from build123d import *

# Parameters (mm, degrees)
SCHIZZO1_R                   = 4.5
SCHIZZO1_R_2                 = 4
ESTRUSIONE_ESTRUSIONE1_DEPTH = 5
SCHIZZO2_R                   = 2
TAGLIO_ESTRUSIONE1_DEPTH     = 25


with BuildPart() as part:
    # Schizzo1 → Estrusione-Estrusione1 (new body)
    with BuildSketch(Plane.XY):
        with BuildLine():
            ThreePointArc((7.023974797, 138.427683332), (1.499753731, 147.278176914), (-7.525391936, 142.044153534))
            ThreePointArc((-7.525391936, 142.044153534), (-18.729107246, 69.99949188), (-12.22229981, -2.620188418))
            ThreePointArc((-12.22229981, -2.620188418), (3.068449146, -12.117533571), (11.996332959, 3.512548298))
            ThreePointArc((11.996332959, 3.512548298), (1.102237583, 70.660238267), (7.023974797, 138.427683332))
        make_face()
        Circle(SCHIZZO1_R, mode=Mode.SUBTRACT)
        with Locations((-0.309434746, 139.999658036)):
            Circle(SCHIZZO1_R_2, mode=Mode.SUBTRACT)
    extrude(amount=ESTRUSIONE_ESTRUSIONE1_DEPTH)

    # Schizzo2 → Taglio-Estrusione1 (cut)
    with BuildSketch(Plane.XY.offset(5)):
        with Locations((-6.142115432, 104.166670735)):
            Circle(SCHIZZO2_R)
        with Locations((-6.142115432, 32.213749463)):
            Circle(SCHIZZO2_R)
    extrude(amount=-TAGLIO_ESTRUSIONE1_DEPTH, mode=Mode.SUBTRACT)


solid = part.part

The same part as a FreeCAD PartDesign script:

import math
import FreeCAD as App
import Part
import Sketcher
Q = App.Units.Quantity

doc = App.newDocument("Part")
body = doc.addObject("PartDesign::Body", "Body")

# Sketch on XY plane
sketch1 = body.newObject("Sketcher::SketchObject", "Sketch")
sketch1.AttachmentSupport = (doc.getObject("XY_Plane"), [""])
sketch1.MapMode = "FlatFace"
sketch1.addGeometry(Part.ArcOfCircle(Part.Circle(App.Vector(-0.309435, 139.999658, 0), App.Vector(0, 0, 1), 7.5), math.radians(-12.098715), math.radians(164.180995)), False)
sketch1.addGeometry(Part.ArcOfCircle(Part.Circle(App.Vector(281.112896, 60.264334, 0), App.Vector(0, 0, 1), 300), math.radians(164.180995), math.radians(192.099796)), False)
sketch1.addGeometry(Part.ArcOfCircle(Part.Circle(App.Vector(0, 0, 0), App.Vector(0, 0, 1), 12.5), math.radians(-167.900204), math.radians(16.320128)), False)
sketch1.addGeometry(Part.ArcOfCircle(Part.Circle(App.Vector(275.915658, 80.788611, 0), App.Vector(0, 0, 1), 275), math.radians(167.901285), math.radians(196.320128)), False)
sketch1.addGeometry(Part.Circle(App.Vector(0, 0, 0), App.Vector(0, 0, 1), 4.5), False)
sketch1.addGeometry(Part.Circle(App.Vector(-0.309435, 139.999658, 0), App.Vector(0, 0, 1), 4), False)
sketch1.addConstraint(Sketcher.Constraint("Tangent", 0, 2, 1, 1))
sketch1.addConstraint(Sketcher.Constraint("Tangent", 1, 2, 2, 1))
sketch1.addConstraint(Sketcher.Constraint("Tangent", 2, 2, 3, 2))
sketch1.addConstraint(Sketcher.Constraint("Tangent", 3, 1, 0, 1))
sketch1.addConstraint(Sketcher.Constraint("Coincident", 2, 3, -1, 1))
sketch1.addConstraint(Sketcher.Constraint("Coincident", 4, 3, -1, 1))
sketch1.addConstraint(Sketcher.Constraint("Coincident", 5, 3, 0, 3))
sketch1.addConstraint(Sketcher.Constraint("Diameter", 4, Q("9 mm")))
sketch1.addConstraint(Sketcher.Constraint("Diameter", 5, Q("8 mm")))
sketch1.addConstraint(Sketcher.Constraint("Radius", 1, Q("300 mm")))
sketch1.addConstraint(Sketcher.Constraint("Radius", 3, Q("275 mm")))
sketch1.addConstraint(Sketcher.Constraint("Radius", 0, Q("7.5 mm")))
sketch1.addConstraint(Sketcher.Constraint("Radius", 2, Q("12.5 mm")))
sketch1.addConstraint(Sketcher.Constraint("DistanceY", -1, 1, 0, 3, Q("139.999658 mm")))
sketch1.addConstraint(Sketcher.Constraint("DistanceX", -1, 1, 3, 3, Q("275.915658 mm")))
pad1 = body.newObject("PartDesign::Pad", "Pad")
pad1.Profile = sketch1
pad1.Length = 5

# Sketch on XY plane
sketch2 = body.newObject("Sketcher::SketchObject", "Sketch001")
sketch2.AttachmentSupport = (doc.getObject("XY_Plane"), [""])
sketch2.MapMode = "FlatFace"
sketch2.AttachmentOffset = App.Placement(App.Vector(0, 0, 5), App.Rotation())
sketch2.addGeometry(Part.Circle(App.Vector(-6.142115, 104.166671, 0), App.Vector(0, 0, 1), 2), False)
sketch2.addGeometry(Part.Circle(App.Vector(-6.142115, 32.213749, 0), App.Vector(0, 0, 1), 2), False)
sketch2.addConstraint(Sketcher.Constraint("Equal", 0, 1))
sketch2.addConstraint(Sketcher.Constraint("Vertical", 0, 3, 1, 3))
sketch2.addConstraint(Sketcher.Constraint("Diameter", 0, Q("4 mm")))
sketch2.addConstraint(Sketcher.Constraint("DistanceY", -1, 1, 0, 3, Q("104.166671 mm")))
sketch2.addConstraint(Sketcher.Constraint("DistanceY", -1, 1, 1, 3, Q("32.213749 mm")))
sketch2.addConstraint(Sketcher.Constraint("DistanceX", 0, 3, -1, 1, Q("6.142115 mm")))
pocket1 = body.newObject("PartDesign::Pocket", "Pocket")
pocket1.Profile = sketch2
pocket1.Length = 25

doc.recompute()
